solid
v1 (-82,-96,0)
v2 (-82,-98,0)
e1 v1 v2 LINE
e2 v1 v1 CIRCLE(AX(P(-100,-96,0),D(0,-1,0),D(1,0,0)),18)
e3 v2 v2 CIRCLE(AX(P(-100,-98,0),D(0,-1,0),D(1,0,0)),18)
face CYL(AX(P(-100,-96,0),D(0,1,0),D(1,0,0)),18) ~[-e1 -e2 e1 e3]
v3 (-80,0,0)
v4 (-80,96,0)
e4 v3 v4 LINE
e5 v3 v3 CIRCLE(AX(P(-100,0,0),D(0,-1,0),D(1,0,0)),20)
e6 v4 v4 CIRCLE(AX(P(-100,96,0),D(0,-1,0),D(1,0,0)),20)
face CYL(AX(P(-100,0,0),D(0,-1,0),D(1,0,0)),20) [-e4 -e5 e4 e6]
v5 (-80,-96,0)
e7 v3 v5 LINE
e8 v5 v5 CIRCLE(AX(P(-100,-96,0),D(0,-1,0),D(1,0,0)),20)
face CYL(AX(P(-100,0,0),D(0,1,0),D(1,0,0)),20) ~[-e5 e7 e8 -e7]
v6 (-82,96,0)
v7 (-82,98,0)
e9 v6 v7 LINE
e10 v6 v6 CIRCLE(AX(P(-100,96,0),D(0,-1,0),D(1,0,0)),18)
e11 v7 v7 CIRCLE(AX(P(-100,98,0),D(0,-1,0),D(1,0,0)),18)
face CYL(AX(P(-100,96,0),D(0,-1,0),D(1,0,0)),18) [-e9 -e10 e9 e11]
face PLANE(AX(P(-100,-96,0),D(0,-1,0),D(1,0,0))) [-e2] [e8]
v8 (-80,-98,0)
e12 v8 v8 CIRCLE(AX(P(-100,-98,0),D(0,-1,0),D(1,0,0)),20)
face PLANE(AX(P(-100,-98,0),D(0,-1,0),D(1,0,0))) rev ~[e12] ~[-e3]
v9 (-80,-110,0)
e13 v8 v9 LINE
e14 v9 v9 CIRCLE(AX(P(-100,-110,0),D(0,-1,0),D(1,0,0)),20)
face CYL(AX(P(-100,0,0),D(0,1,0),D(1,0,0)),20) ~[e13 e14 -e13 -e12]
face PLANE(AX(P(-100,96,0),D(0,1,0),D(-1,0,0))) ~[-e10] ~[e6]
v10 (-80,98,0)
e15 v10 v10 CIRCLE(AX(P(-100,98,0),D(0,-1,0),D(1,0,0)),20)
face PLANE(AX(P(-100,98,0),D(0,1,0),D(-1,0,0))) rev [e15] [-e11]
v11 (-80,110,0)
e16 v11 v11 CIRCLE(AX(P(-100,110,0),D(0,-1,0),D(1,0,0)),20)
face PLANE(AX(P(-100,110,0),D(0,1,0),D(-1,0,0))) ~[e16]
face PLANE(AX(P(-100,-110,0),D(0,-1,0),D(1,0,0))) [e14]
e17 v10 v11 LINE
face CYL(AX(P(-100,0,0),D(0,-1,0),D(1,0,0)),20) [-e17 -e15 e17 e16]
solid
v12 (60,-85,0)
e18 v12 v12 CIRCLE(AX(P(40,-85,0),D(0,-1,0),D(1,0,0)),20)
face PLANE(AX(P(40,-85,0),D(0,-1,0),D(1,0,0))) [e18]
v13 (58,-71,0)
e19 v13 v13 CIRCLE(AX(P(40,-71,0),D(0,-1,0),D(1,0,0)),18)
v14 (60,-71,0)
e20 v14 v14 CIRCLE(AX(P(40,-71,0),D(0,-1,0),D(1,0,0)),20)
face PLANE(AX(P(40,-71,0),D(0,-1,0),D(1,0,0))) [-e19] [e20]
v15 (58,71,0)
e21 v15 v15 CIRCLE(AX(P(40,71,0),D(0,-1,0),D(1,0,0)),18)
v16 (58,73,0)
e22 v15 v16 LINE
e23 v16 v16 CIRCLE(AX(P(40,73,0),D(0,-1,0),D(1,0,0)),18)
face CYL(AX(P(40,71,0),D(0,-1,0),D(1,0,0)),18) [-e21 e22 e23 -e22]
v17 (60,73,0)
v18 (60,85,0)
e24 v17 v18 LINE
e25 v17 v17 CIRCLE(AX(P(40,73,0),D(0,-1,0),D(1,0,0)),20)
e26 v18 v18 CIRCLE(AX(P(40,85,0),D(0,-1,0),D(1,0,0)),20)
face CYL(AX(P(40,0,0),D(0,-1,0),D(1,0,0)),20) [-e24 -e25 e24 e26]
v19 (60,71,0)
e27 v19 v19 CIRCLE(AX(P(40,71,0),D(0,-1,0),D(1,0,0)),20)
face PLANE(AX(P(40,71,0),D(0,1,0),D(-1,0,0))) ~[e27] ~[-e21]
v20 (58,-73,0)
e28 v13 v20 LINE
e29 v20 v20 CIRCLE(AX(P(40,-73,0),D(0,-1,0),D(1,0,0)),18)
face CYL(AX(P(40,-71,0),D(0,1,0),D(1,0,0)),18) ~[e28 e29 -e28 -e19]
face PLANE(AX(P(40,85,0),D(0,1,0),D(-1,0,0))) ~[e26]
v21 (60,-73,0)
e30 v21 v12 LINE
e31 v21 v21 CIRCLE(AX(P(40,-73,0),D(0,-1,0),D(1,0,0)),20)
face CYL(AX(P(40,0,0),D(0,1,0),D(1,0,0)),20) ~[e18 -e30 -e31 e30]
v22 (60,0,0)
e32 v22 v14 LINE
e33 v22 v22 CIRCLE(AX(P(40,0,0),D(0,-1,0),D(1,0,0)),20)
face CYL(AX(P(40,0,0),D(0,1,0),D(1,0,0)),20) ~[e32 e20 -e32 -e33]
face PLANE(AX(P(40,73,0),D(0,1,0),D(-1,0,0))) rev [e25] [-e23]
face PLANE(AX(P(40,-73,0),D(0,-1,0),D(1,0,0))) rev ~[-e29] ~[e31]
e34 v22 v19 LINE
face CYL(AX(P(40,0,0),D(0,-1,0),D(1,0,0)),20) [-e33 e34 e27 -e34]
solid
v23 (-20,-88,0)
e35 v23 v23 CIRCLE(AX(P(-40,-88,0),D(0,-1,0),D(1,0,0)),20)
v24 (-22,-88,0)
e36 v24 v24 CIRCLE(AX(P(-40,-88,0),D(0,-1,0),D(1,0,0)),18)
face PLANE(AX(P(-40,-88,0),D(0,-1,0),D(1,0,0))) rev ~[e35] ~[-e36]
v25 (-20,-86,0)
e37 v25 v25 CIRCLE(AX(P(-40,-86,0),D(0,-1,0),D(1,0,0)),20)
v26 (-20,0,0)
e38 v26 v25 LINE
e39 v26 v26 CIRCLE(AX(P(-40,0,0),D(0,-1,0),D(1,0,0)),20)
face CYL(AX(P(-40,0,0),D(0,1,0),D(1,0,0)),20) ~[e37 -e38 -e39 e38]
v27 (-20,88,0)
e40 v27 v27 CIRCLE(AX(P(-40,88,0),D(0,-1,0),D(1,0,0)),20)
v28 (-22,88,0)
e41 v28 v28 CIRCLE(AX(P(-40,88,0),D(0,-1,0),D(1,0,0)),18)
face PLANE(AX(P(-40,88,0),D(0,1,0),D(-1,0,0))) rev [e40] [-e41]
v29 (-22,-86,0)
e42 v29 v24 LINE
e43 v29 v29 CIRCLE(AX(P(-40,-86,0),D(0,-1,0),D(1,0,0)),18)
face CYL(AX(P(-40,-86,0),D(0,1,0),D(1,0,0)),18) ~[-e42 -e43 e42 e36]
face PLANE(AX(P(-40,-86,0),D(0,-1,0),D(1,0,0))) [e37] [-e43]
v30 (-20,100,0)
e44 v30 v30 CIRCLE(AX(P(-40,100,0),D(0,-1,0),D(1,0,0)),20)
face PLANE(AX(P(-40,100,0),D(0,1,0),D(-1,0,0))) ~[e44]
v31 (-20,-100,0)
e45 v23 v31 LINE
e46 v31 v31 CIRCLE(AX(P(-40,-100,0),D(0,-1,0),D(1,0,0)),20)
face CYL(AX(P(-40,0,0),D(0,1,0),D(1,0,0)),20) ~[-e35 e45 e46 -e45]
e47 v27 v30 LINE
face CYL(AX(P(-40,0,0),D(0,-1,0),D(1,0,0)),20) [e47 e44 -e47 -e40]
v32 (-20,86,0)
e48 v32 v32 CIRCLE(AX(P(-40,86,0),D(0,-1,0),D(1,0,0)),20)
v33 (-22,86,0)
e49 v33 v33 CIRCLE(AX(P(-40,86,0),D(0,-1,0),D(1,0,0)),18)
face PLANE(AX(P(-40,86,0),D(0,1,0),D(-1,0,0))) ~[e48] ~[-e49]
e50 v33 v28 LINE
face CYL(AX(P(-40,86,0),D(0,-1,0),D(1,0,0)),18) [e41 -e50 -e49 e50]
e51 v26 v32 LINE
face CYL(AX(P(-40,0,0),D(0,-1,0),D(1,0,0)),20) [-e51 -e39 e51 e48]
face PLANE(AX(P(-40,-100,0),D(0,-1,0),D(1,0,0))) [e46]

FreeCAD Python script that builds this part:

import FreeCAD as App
import Part
import Sketcher
from FreeCAD import Vector
Q = App.Units.Quantity

doc = App.newDocument("Part")
body = doc.addObject("PartDesign::Body", "Body")

# Sketch on XZ plane
sketch1 = doc.addObject("Sketcher::SketchObject", "Sketch")
body.addObject(sketch1)
sketch1.AttachmentSupport = (doc.XZ_Plane, [""])
sketch1.MapMode = "FlatFace"
sketch1.addGeometry(Part.Circle(Vector(-100, 0, 0), Vector(0, 0, 1), 20), False)
sketch1.addConstraint(Sketcher.Constraint("PointOnObject", 0, 3, -1))
sketch1.addConstraint(Sketcher.Constraint("Diameter", 0, Q("40 mm")))
sketch1.addConstraint(Sketcher.Constraint("DistanceX", 0, 3, -1, 1, Q("100 mm")))
pad1 = doc.addObject("PartDesign::Pad", "Pad")
body.addObject(pad1)
pad1.Profile = sketch1
pad1.Length = 110

# Sketch on XZ plane
sketch2 = doc.addObject("Sketcher::SketchObject", "Sketch001")
body.addObject(sketch2)
sketch2.AttachmentSupport = (doc.XZ_Plane, [""])
sketch2.MapMode = "FlatFace"
sketch2.AttachmentOffset = App.Placement(Vector(0, 0, 96), App.Rotation())
sketch2.addGeometry(Part.Circle(Vector(-100, 0, 0), Vector(0, 0, 1), 20), False)
sketch2.addGeometry(Part.Circle(Vector(-100, 0, 0), Vector(0, 0, 1), 18), False)
sketch2.addConstraint(Sketcher.Constraint("Coincident", 1, 3, 0, 3))
sketch2.addConstraint(Sketcher.Constraint("PointOnObject", 0, 3, -1))
sketch2.addConstraint(Sketcher.Constraint("Diameter", 0, Q("40 mm")))
sketch2.addConstraint(Sketcher.Constraint("Diameter", 1, Q("36 mm")))
sketch2.addConstraint(Sketcher.Constraint("DistanceX", 0, 3, -1, 1, Q("100 mm")))
pocket1 = doc.addObject("PartDesign::Pocket", "Pocket")
body.addObject(pocket1)
pocket1.Profile = sketch2
pocket1.Length = 2
pocket1.Reversed = True
body2 = doc.addObject("PartDesign::Body", "Body001")
doc.recompute()

body2.BaseFeature = body
doc.recompute()

mirroring = doc.addObject("Part::Mirroring", "Mirroring")
mirroring.Source = body
mirroring.Base = Vector(0, 0, 0)
mirroring.Normal = Vector(0, -1, 0)
body3 = doc.addObject("PartDesign::Body", "Body002")
body3.BaseFeature = mirroring
boolean = doc.addObject("PartDesign::Boolean", "Boolean")
body2.addObject(boolean)
boolean.Type = "Fuse"
boolean.addObjects([body3])
doc.recompute()
body4 = doc.addObject("PartDesign::Body", "Body003")

# Sketch on XZ plane
sketch3 = doc.addObject("Sketcher::SketchObject", "Sketch002")
body4.addObject(sketch3)
sketch3.AttachmentSupport = (doc.getObject("XZ_Plane003"), [""])
sketch3.MapMode = "FlatFace"
sketch3.addGeometry(Part.Circle(Vector(-40, 0, 0), Vector(0, 0, 1), 20), False)
sketch3.addConstraint(Sketcher.Constraint("PointOnObject", 0, 3, -1))
sketch3.addConstraint(Sketcher.Constraint("Diameter", 0, Q("40 mm")))
sketch3.addConstraint(Sketcher.Constraint("DistanceX", 0, 3, -1, 1, Q("40 mm")))
pad2 = doc.addObject("PartDesign::Pad", "Pad001")
body4.addObject(pad2)
pad2.Profile = sketch3
pad2.Length = 100

# Sketch on XZ plane
sketch4 = doc.addObject("Sketcher::SketchObject", "Sketch003")
body4.addObject(sketch4)
sketch4.AttachmentSupport = (doc.getObject("XZ_Plane003"), [""])
sketch4.MapMode = "FlatFace"
sketch4.AttachmentOffset = App.Placement(Vector(0, 0, 86), App.Rotation())
sketch4.addGeometry(Part.Circle(Vector(-40, 0, 0), Vector(0, 0, 1), 20), False)
sketch4.addGeometry(Part.Circle(Vector(-40, 0, 0), Vector(0, 0, 1), 18), False)
sketch4.addConstraint(Sketcher.Constraint("Coincident", 1, 3, 0, 3))
sketch4.addConstraint(Sketcher.Constraint("PointOnObject", 0, 3, -1))
sketch4.addConstraint(Sketcher.Constraint("Diameter", 0, Q("40 mm")))
sketch4.addConstraint(Sketcher.Constraint("Diameter", 1, Q("36 mm")))
sketch4.addConstraint(Sketcher.Constraint("DistanceX", 0, 3, -1, 1, Q("40 mm")))
pocket2 = doc.addObject("PartDesign::Pocket", "Pocket001")
body4.addObject(pocket2)
pocket2.Profile = sketch4
pocket2.Length = 2
pocket2.Reversed = True
body5 = doc.addObject("PartDesign::Body", "Body004")
doc.recompute()

body5.BaseFeature = body4
doc.recompute()

mirroring2 = doc.addObject("Part::Mirroring", "Mirroring001")
mirroring2.Source = body4
mirroring2.Base = Vector(0, 0, 0)
mirroring2.Normal = Vector(0, -1, 0)
body6 = doc.addObject("PartDesign::Body", "Body005")
body6.BaseFeature = mirroring2
boolean2 = doc.addObject("PartDesign::Boolean", "Boolean001")
body5.addObject(boolean2)
boolean2.Type = "Fuse"
boolean2.addObjects([body6])
doc.recompute()
body7 = doc.addObject("PartDesign::Body", "Body006")

# Sketch on XZ plane
sketch5 = doc.addObject("Sketcher::SketchObject", "Sketch004")
body7.addObject(sketch5)
sketch5.AttachmentSupport = (doc.getObject("XZ_Plane006"), [""])
sketch5.MapMode = "FlatFace"
sketch5.addGeometry(Part.Circle(Vector(40, 0, 0), Vector(0, 0, 1), 20), False)
sketch5.addConstraint(Sketcher.Constraint("PointOnObject", 0, 3, -1))
sketch5.addConstraint(Sketcher.Constraint("Diameter", 0, Q("40 mm")))
sketch5.addConstraint(Sketcher.Constraint("DistanceX", -1, 1, 0, 3, Q("40 mm")))
pad3 = doc.addObject("PartDesign::Pad", "Pad002")
body7.addObject(pad3)
pad3.Profile = sketch5
pad3.Length = 85

# Sketch on XZ plane
sketch6 = doc.addObject("Sketcher::SketchObject", "Sketch005")
body7.addObject(sketch6)
sketch6.AttachmentSupport = (doc.getObject("XZ_Plane006"), [""])
sketch6.MapMode = "FlatFace"
sketch6.AttachmentOffset = App.Placement(Vector(0, 0, 71), App.Rotation())
sketch6.addGeometry(Part.Circle(Vector(40, 0, 0), Vector(0, 0, 1), 20), False)
sketch6.addGeometry(Part.Circle(Vector(40, 0, 0), Vector(0, 0, 1), 18), False)
sketch6.addConstraint(Sketcher.Constraint("Coincident", 1, 3, 0, 3))
sketch6.addConstraint(Sketcher.Constraint("PointOnObject", 0, 3, -1))
sketch6.addConstraint(Sketcher.Constraint("Diameter", 0, Q("40 mm")))
sketch6.addConstraint(Sketcher.Constraint("Diameter", 1, Q("36 mm")))
sketch6.addConstraint(Sketcher.Constraint("DistanceX", -1, 1, 0, 3, Q("40 mm")))
pocket3 = doc.addObject("PartDesign::Pocket", "Pocket002")
body7.addObject(pocket3)
pocket3.Profile = sketch6
pocket3.Length = 2
pocket3.Reversed = True
body8 = doc.addObject("PartDesign::Body", "Body007")
doc.recompute()

body8.BaseFeature = body7
doc.recompute()

mirroring3 = doc.addObject("Part::Mirroring", "Mirroring002")
mirroring3.Source = body7
mirroring3.Base = Vector(0, 0, 0)
mirroring3.Normal = Vector(0, -1, 0)
body9 = doc.addObject("PartDesign::Body", "Body008")
body9.BaseFeature = mirroring3
boolean3 = doc.addObject("PartDesign::Boolean", "Boolean002")
body8.addObject(boolean3)
boolean3.Type = "Fuse"
boolean3.addObjects([body9])
doc.recompute()
mirroring.Visibility = False
mirroring2.Visibility = False
mirroring3.Visibility = False

doc.recompute()
